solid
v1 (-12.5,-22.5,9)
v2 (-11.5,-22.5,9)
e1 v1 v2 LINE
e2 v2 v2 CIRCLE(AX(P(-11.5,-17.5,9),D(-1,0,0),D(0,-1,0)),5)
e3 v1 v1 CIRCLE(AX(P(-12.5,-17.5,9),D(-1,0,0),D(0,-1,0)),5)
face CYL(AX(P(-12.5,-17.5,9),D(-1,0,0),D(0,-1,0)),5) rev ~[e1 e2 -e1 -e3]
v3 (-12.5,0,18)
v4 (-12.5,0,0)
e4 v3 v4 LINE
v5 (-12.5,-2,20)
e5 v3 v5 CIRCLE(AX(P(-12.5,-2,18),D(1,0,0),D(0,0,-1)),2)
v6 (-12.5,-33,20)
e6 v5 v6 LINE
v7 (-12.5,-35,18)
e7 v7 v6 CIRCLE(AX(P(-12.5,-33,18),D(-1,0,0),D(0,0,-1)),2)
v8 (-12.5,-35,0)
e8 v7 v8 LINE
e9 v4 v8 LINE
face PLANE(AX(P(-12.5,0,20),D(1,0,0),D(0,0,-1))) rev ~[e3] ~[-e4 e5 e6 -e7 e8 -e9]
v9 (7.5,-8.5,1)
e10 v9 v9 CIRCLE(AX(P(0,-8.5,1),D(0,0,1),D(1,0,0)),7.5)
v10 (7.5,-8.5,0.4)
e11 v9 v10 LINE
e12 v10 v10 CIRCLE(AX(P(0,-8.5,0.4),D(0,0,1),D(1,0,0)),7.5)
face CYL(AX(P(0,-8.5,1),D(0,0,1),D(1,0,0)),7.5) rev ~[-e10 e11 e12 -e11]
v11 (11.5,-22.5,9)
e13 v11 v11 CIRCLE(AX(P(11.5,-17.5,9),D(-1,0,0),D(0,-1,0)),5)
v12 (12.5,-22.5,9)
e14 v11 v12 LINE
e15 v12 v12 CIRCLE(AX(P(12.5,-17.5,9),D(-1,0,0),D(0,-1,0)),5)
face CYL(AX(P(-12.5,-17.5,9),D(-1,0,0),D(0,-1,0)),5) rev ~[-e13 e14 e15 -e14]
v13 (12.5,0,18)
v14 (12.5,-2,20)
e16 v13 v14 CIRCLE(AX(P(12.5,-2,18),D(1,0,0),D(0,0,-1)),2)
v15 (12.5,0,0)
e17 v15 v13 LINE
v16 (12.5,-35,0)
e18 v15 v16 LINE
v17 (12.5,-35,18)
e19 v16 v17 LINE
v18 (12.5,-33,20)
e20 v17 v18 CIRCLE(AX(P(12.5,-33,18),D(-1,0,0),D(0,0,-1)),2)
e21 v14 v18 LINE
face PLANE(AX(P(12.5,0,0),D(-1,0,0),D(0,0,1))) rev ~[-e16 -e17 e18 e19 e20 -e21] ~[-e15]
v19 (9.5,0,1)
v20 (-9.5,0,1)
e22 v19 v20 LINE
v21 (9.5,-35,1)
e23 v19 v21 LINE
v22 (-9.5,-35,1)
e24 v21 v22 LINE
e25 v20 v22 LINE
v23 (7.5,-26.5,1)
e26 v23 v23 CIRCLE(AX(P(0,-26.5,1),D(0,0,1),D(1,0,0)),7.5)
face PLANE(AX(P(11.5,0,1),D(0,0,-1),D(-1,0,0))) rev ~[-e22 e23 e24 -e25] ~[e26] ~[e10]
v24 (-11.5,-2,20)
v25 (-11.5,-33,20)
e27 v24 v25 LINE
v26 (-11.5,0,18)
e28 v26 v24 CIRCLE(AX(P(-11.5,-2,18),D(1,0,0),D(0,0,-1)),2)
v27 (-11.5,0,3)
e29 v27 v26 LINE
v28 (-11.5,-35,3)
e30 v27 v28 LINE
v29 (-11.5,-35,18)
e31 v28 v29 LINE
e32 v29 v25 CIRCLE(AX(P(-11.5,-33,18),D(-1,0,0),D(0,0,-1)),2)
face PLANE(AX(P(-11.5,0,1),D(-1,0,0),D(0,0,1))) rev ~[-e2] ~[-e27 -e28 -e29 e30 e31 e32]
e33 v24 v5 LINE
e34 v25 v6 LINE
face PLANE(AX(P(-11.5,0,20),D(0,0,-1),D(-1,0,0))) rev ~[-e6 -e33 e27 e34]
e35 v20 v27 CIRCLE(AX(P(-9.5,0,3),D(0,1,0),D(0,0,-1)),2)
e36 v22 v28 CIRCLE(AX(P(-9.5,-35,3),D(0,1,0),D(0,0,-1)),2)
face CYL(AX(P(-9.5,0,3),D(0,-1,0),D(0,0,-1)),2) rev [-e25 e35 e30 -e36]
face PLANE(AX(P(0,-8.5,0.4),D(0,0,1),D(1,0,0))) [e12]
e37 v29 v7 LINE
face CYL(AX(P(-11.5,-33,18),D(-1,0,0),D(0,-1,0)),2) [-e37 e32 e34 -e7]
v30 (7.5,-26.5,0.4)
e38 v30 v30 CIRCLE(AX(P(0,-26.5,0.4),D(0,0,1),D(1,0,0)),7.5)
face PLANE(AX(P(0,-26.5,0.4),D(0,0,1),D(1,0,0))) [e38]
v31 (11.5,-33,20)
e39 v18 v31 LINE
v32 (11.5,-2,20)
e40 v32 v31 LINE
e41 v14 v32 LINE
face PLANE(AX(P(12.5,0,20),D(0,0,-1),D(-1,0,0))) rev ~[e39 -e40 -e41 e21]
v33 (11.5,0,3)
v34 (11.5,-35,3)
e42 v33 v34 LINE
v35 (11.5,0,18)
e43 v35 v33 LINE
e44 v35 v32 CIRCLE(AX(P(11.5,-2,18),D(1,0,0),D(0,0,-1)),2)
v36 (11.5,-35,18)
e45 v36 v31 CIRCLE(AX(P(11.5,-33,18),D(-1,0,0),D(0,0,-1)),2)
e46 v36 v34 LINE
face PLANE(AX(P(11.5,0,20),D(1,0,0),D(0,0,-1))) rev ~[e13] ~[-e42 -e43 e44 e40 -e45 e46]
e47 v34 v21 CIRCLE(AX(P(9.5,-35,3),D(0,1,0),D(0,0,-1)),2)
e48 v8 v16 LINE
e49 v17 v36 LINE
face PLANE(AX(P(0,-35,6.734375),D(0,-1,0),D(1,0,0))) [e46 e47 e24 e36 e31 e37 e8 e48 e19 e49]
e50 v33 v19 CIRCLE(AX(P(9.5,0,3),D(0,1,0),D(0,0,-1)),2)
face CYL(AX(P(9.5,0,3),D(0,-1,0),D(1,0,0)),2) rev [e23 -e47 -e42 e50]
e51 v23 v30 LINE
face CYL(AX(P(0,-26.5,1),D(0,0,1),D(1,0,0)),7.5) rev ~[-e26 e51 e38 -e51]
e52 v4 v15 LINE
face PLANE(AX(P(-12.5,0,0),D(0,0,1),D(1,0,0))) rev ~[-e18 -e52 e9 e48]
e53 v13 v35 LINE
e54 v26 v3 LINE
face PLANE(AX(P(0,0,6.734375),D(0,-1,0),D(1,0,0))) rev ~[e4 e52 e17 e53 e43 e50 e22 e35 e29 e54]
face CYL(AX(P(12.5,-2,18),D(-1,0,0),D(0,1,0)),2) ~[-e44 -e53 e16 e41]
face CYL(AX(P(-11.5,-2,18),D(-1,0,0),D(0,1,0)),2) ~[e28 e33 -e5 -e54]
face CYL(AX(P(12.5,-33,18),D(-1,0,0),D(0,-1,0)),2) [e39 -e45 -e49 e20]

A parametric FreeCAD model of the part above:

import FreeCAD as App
import Part
import Sketcher

V = App.Vector
Q = App.Units.Quantity


def edges_at(feature, points):
    """Names of the edges that pass closest to the given points."""
    edges = feature.Shape.Edges
    near = lambda p: min(range(len(edges)), key=lambda i: edges[i].distToShape(Part.Vertex(*p))[0])
    return sorted({f"Edge{near(p) + 1}" for p in points})

doc = App.newDocument("Part")
params = doc.addObject("Spreadsheet::Sheet", "Params")
for row, (alias, value) in enumerate([
    ("sketch1_width", "25 mm"),
    ("sketch1_width2", "1 mm"),
    ("sketch1_height", "20 mm"),
    ("sketch1_height2", "19 mm"),
    ("pad1_length", "35 mm"),
    ("sketch2_diameter", "15 mm"),
    ("pocket1_length", "0.6 mm"),
    ("fillet_radius", "2 mm"),
    ("sketch3_diameter", "10 mm"),
], start=1):
    params.set(f"A{row}", alias)
    params.set(f"B{row}", "=" + value)
    params.setAlias(f"B{row}", alias)

body = doc.addObject("PartDesign::Body", "Body")

# Sketch on XZ plane
sketch1 = body.newObject("Sketcher::SketchObject", "Sketch")
sketch1.AttachmentSupport = (doc.getObject("XZ_Plane"), [""])
sketch1.MapMode = "FlatFace"
sketch1.addGeometry([
    Part.LineSegment(V(-12.5, 0, 0), V(12.5, 0, 0)),  # 0
    Part.LineSegment(V(12.5, 0, 0), V(12.5, 20, 0)),  # 1
    Part.LineSegment(V(12.5, 20, 0), V(11.5, 20, 0)),  # 2
    Part.LineSegment(V(11.5, 20, 0), V(11.5, 1, 0)),  # 3
    Part.LineSegment(V(11.5, 1, 0), V(-11.5, 1, 0)),  # 4
    Part.LineSegment(V(-11.5, 1, 0), V(-11.5, 20, 0)),  # 5
    Part.LineSegment(V(-11.5, 20, 0), V(-12.5, 20, 0)),  # 6
    Part.LineSegment(V(-12.5, 20, 0), V(-12.5, 0, 0)),  # 7
], False)
sketch1.addConstraint([
    Sketcher.Constraint("Coincident", 0, 2, 1, 1),
    Sketcher.Constraint("Coincident", 1, 2, 2, 1),
    Sketcher.Constraint("Coincident", 2, 2, 3, 1),
    Sketcher.Constraint("Coincident", 3, 2, 4, 1),
    Sketcher.Constraint("Coincident", 4, 2, 5, 1),
    Sketcher.Constraint("Coincident", 5, 2, 6, 1),
    Sketcher.Constraint("Coincident", 6, 2, 7, 1),
    Sketcher.Constraint("Coincident", 7, 2, 0, 1),
    Sketcher.Constraint("Horizontal", 0),
    Sketcher.Constraint("Vertical", 1),
    Sketcher.Constraint("Horizontal", 2),
    Sketcher.Constraint("Vertical", 3),
    Sketcher.Constraint("Horizontal", 4),
    Sketcher.Constraint("Vertical", 5),
    Sketcher.Constraint("Horizontal", 6),
    Sketcher.Constraint("Vertical", 7),
    Sketcher.Constraint("Symmetric", 0, 2, 7, 2, -1, 1),
    Sketcher.Constraint("Symmetric", 2, 2, 5, 2, -2),
    Sketcher.Constraint("DistanceX", 0, 1, 0, 2, Q("25 mm")),
    Sketcher.Constraint("DistanceX", 2, 2, 2, 1, Q("1 mm")),
    Sketcher.Constraint("DistanceY", 1, 1, 1, 2, Q("20 mm")),
    Sketcher.Constraint("DistanceY", 3, 2, 3, 1, Q("19 mm")),
])
sketch1.setExpression("Constraints[18]", "Params.sketch1_width")
sketch1.setExpression("Constraints[19]", "Params.sketch1_width2")
sketch1.setExpression("Constraints[20]", "Params.sketch1_height")
sketch1.setExpression("Constraints[21]", "Params.sketch1_height2")
pad1 = body.newObject("PartDesign::Pad", "Pad")
pad1.Profile = sketch1
pad1.setExpression("Length", "Params.pad1_length")

# Sketch on XY plane
sketch2 = body.newObject("Sketcher::SketchObject", "Sketch001")
sketch2.AttachmentSupport = (doc.getObject("XY_Plane"), [""])
sketch2.MapMode = "FlatFace"
sketch2.AttachmentOffset = App.Placement(V(0, 0, 1), App.Rotation())
sketch2.addGeometry([
    Part.Circle(V(0, -8.5, 0), V(0, 0, 1), 7.5),
    Part.Circle(V(0, -26.5, 0), V(0, 0, 1), 7.5),
], False)
sketch2.addConstraint([
    Sketcher.Constraint("Equal", 0, 1),
    Sketcher.Constraint("PointOnObject", 0, 3, -2),
    Sketcher.Constraint("PointOnObject", 1, 3, -2),
    Sketcher.Constraint("Diameter", 0, Q("15 mm")),
    Sketcher.Constraint("DistanceY", 1, 3, 0, 3, Q("18 mm")),
    Sketcher.Constraint("DistanceY", 0, 3, -1, 1, Q("8.5 mm")),
])
sketch2.setExpression("Constraints[3]", "Params.sketch2_diameter")
pocket1 = body.newObject("PartDesign::Pocket", "Pocket")
pocket1.Profile = sketch2
pocket1.setExpression("Length", "Params.pocket1_length")
doc.recompute()

fillet = body.newObject("PartDesign::Fillet", "Fillet")
fillet.Base = (pocket1, edges_at(pocket1, [
    (-11.5, -17.5, 1),
    (11.5, -17.5, 1),
    (-12, -35, 20),
    (12, -35, 20),
    (12, 0, 20),
    (-12, 0, 20),
]))
fillet.setExpression("Radius", "Params.fillet_radius")

# Sketch on YZ plane
sketch3 = body.newObject("Sketcher::SketchObject", "Sketch002")
sketch3.AttachmentSupport = (doc.getObject("YZ_Plane"), [""])
sketch3.MapMode = "FlatFace"
sketch3.AttachmentOffset = App.Placement(V(0, 0, -12.5), App.Rotation())
sketch3.addGeometry(Part.Circle(V(-17.5, 9, 0), V(0, 0, 1), 5), False)
sketch3.addConstraint([
    Sketcher.Constraint("Diameter", 0, Q("10 mm")),
    Sketcher.Constraint("DistanceY", -1, 1, 0, 3, Q("9 mm")),
    Sketcher.Constraint("DistanceX", 0, 3, -1, 1, Q("17.5 mm")),
])
sketch3.setExpression("Constraints[0]", "Params.sketch3_diameter")
pocket2 = body.newObject("PartDesign::Pocket", "Pocket001")
pocket2.Profile = sketch3
pocket2.Type = "ThroughAll"
pocket2.Reversed = True

doc.recompute()
